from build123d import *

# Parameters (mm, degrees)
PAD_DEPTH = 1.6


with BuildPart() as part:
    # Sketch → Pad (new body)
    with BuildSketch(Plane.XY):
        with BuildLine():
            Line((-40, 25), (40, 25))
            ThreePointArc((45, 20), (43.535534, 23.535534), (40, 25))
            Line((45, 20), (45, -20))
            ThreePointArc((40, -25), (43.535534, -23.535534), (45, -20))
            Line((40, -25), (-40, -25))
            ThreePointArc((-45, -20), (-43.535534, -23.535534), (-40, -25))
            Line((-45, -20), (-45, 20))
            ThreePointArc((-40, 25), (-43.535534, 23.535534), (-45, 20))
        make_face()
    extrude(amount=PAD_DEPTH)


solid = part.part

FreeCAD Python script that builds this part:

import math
import FreeCAD as App
import Part
import Sketcher
Q = App.Units.Quantity

doc = App.newDocument("Part")
params = doc.addObject("Spreadsheet::Sheet", "Params")
for row, (alias, value) in enumerate([
    ("sketch1_radius", "5 mm"),
    ("sketch1_width", "80 mm"),
    ("sketch1_height", "40 mm"),
    ("pad1_length", "1.6 mm"),
], start=1):
    params.set(f"A{row}", alias)
    params.set(f"B{row}", "=" + value)
    params.setAlias(f"B{row}", alias)

body = doc.addObject("PartDesign::Body", "Body")

# Sketch on XY plane
sketch1 = body.newObject("Sketcher::SketchObject", "Sketch")
sketch1.AttachmentSupport = (doc.getObject("XY_Plane"), [""])
sketch1.MapMode = "FlatFace"
sketch1.addGeometry(Part.LineSegment(App.Vector(40, 25, 0), App.Vector(-40, 25, 0)), False)
sketch1.addGeometry(Part.ArcOfCircle(Part.Circle(App.Vector(-40, 20, 0), App.Vector(0, 0, 1), 5), math.radians(90), math.radians(180)), False)
sketch1.addGeometry(Part.LineSegment(App.Vector(-45, 20, 0), App.Vector(-45, -20, 0)), False)
sketch1.addGeometry(Part.ArcOfCircle(Part.Circle(App.Vector(-40, -20, 0), App.Vector(0, 0, 1), 5), math.radians(180), math.radians(270)), False)
sketch1.addGeometry(Part.LineSegment(App.Vector(-40, -25, 0), App.Vector(40, -25, 0)), False)
sketch1.addGeometry(Part.ArcOfCircle(Part.Circle(App.Vector(40, -20, 0), App.Vector(0, 0, 1), 5), math.radians(-90), math.radians(0)), False)
sketch1.addGeometry(Part.LineSegment(App.Vector(45, -20, 0), App.Vector(45, 20, 0)), False)
sketch1.addGeometry(Part.ArcOfCircle(Part.Circle(App.Vector(40, 20, 0), App.Vector(0, 0, 1), 5), math.radians(0), math.radians(90)), False)
sketch1.addConstraint(Sketcher.Constraint("Tangent", 0, 2, 1, 1))
sketch1.addConstraint(Sketcher.Constraint("Tangent", 1, 2, 2, 1))
sketch1.addConstraint(Sketcher.Constraint("Tangent", 2, 2, 3, 1))
sketch1.addConstraint(Sketcher.Constraint("Tangent", 3, 2, 4, 1))
sketch1.addConstraint(Sketcher.Constraint("Tangent", 4, 2, 5, 1))
sketch1.addConstraint(Sketcher.Constraint("Tangent", 5, 2, 6, 1))
sketch1.addConstraint(Sketcher.Constraint("Tangent", 6, 2, 7, 1))
sketch1.addConstraint(Sketcher.Constraint("Tangent", 7, 2, 0, 1))
sketch1.addConstraint(Sketcher.Constraint("Horizontal", 0))
sketch1.addConstraint(Sketcher.Constraint("Vertical", 2))
sketch1.addConstraint(Sketcher.Constraint("Horizontal", 4))
sketch1.addConstraint(Sketcher.Constraint("Vertical", 6))
sketch1.addConstraint(Sketcher.Constraint("Equal", 1, 3))
sketch1.addConstraint(Sketcher.Constraint("Equal", 3, 5))
sketch1.addConstraint(Sketcher.Constraint("Equal", 5, 7))
sketch1.addConstraint(Sketcher.Constraint("Symmetric", 1, 3, 5, 3, -1, 1))
sketch1.addConstraint(Sketcher.Constraint("Radius", 1, Q("5 mm")))
sketch1.addConstraint(Sketcher.Constraint("DistanceX", 0, 2, 0, 1, Q("80 mm")))
sketch1.addConstraint(Sketcher.Constraint("DistanceY", 2, 2, 2, 1, Q("40 mm")))
sketch1.setExpression("Constraints[16]", "Params.sketch1_radius")
sketch1.setExpression("Constraints[17]", "Params.sketch1_width")
sketch1.setExpression("Constraints[18]", "Params.sketch1_height")
pad1 = body.newObject("PartDesign::Pad", "Pad")
pad1.Profile = sketch1
pad1.setExpression("Length", "Params.pad1_length")

doc.recompute()
